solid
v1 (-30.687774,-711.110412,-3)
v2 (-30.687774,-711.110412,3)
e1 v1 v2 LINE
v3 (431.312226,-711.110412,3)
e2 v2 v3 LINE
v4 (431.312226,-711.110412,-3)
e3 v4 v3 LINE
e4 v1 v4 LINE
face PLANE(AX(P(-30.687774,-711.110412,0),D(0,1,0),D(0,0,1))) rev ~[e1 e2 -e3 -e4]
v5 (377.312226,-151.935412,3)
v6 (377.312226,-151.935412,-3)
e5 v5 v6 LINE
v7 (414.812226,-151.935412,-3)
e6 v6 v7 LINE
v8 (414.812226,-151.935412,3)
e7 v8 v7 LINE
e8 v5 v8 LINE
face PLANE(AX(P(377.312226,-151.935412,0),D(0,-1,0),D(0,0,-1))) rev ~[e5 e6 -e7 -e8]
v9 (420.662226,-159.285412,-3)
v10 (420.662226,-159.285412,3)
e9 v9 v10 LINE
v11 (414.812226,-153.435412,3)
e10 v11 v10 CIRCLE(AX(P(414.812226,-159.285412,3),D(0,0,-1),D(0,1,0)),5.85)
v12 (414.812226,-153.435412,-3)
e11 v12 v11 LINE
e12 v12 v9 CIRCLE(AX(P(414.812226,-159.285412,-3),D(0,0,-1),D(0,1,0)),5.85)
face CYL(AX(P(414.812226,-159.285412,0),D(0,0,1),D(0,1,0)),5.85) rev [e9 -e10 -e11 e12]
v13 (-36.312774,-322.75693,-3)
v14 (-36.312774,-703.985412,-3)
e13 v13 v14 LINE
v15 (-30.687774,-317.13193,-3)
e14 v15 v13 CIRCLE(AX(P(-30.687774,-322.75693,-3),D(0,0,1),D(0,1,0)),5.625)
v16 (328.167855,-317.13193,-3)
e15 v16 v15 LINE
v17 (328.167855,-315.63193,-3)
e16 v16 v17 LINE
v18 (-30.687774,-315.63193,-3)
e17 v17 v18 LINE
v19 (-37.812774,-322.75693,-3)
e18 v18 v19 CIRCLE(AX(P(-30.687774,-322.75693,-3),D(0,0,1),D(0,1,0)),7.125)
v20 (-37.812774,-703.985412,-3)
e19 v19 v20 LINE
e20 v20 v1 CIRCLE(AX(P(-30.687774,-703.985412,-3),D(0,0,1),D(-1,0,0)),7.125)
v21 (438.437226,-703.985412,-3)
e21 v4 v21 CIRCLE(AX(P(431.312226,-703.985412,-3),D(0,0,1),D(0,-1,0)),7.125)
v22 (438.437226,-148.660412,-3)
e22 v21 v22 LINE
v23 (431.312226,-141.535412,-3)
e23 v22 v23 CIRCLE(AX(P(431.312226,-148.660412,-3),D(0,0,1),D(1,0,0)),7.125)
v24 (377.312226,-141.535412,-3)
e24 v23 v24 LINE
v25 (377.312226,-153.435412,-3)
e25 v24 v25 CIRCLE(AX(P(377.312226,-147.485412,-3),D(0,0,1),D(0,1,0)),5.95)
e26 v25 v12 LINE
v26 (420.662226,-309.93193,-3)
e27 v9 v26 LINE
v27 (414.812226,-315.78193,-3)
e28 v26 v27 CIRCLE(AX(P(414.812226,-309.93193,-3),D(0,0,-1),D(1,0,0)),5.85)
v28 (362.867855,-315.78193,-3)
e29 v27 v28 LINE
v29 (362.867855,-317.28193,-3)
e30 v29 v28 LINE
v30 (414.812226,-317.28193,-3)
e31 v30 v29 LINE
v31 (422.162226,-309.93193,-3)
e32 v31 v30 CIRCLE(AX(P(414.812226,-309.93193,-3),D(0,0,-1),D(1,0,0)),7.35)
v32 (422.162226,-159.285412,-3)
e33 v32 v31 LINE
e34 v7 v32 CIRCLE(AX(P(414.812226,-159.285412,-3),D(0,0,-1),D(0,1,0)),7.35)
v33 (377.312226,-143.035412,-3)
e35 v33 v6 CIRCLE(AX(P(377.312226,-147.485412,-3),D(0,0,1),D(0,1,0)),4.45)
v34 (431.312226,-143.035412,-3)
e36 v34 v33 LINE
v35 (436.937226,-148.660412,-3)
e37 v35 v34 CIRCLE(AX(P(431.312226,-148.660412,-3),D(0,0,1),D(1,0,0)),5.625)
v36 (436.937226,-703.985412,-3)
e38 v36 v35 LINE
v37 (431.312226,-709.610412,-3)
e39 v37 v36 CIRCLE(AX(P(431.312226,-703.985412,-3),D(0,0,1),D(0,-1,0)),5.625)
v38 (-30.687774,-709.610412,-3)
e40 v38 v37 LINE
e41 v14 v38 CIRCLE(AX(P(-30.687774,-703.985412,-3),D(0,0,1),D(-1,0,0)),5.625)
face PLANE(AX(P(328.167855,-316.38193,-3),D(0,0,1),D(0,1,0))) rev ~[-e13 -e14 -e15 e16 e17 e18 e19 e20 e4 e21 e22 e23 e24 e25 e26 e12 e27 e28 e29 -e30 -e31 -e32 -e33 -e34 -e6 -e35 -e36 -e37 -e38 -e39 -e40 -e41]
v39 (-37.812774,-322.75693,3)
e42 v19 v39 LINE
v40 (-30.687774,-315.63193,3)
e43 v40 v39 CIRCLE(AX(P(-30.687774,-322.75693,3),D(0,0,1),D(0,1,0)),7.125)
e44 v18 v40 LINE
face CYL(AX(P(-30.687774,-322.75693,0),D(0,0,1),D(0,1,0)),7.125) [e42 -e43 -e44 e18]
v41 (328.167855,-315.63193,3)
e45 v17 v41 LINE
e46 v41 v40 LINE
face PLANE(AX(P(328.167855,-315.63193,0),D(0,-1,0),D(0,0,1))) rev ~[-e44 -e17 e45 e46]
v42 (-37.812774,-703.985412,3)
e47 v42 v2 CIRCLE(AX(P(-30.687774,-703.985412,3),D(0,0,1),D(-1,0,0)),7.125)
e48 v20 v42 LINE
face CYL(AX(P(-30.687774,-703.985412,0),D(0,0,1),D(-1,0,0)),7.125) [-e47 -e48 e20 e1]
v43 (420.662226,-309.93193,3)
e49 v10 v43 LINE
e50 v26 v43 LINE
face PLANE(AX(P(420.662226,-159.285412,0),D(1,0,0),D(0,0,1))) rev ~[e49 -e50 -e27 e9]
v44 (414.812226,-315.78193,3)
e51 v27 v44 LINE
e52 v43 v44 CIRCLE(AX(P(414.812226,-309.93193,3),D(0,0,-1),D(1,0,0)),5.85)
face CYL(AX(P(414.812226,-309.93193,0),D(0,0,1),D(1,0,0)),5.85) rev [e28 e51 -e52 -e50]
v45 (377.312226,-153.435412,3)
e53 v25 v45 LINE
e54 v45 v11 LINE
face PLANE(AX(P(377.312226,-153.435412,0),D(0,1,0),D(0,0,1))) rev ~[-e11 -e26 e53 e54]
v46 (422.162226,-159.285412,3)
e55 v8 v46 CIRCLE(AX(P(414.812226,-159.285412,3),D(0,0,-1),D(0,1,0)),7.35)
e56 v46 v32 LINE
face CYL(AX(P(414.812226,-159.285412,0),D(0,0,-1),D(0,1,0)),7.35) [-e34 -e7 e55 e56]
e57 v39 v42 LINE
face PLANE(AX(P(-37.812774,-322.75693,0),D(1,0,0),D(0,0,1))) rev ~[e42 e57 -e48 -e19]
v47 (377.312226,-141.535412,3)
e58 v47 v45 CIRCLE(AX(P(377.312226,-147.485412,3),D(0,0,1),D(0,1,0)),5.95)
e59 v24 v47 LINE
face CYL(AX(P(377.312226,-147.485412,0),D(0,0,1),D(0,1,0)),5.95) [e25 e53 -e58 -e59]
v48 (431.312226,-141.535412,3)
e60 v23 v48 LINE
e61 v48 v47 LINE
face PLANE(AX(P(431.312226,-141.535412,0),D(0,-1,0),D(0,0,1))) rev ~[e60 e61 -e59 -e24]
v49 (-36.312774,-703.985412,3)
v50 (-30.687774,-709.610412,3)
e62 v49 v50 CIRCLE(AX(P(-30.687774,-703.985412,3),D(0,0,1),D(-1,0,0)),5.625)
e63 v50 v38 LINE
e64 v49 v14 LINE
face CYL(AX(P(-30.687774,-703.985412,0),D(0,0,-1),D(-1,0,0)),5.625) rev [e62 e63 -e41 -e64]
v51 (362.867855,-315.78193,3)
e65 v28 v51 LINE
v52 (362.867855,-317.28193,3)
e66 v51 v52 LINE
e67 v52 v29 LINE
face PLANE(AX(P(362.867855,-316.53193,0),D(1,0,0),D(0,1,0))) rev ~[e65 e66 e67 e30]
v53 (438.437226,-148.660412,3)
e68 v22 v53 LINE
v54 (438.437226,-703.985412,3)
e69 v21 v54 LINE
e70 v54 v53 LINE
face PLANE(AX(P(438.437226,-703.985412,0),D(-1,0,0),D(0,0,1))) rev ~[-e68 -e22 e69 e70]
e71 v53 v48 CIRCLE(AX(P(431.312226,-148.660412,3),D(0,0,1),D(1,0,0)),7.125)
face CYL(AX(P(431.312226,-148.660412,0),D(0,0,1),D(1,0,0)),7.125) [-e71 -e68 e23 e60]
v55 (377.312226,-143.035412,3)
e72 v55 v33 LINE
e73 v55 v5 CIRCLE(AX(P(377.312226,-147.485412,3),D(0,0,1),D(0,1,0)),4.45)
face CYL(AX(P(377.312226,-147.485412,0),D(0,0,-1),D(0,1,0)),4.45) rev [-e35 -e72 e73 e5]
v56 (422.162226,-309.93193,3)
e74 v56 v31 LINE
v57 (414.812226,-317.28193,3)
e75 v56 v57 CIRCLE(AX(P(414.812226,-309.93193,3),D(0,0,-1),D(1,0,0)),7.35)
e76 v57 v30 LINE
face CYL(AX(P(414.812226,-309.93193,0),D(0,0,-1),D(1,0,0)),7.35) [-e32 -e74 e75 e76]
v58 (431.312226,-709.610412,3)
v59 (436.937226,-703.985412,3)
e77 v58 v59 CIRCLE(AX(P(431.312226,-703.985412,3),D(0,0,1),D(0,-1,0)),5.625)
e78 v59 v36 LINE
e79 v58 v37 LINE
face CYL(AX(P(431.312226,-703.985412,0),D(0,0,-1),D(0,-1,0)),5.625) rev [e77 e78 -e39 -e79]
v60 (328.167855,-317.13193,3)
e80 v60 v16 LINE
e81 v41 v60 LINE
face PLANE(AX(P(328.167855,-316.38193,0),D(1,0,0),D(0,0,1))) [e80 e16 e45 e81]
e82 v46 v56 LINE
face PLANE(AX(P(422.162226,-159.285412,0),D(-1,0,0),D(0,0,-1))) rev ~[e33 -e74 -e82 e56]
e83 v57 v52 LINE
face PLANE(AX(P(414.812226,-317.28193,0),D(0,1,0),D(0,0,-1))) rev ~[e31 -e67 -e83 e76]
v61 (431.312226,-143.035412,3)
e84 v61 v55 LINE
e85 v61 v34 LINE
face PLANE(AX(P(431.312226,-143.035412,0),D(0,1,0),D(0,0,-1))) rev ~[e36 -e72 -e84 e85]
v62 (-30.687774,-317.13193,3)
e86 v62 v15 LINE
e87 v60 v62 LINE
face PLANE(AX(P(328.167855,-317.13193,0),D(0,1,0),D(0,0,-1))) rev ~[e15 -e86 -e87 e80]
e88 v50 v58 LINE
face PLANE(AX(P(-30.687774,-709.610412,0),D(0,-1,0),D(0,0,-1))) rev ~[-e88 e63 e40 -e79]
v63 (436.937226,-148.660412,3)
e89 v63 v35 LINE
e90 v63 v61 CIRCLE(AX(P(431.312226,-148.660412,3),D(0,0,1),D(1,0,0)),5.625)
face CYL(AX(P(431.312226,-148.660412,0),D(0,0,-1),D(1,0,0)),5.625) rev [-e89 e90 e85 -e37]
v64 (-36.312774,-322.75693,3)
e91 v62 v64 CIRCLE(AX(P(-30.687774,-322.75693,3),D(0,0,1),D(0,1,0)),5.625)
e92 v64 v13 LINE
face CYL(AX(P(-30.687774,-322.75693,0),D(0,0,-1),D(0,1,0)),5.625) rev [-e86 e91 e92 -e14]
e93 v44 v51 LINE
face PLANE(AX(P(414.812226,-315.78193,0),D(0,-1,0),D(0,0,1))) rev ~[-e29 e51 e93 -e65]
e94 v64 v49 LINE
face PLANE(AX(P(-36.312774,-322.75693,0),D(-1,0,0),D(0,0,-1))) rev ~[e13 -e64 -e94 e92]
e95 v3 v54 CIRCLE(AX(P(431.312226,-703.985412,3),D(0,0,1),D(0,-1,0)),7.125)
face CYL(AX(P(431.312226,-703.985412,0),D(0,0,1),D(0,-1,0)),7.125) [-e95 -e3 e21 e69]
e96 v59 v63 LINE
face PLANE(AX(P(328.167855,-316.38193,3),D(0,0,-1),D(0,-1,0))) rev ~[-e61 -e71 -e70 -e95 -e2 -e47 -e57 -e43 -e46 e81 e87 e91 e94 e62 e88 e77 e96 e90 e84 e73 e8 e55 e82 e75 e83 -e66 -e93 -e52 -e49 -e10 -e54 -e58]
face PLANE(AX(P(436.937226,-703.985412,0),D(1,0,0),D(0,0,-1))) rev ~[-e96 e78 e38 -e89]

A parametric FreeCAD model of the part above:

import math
import FreeCAD as App
import Part
import Sketcher

V = App.Vector

doc = App.newDocument("Part")
body = doc.addObject("PartDesign::Body", "Body")

sketch1 = body.newObject("Sketcher::SketchObject", "Sketch")
sketch1.AttachmentSupport = (doc.getObject("YZ_Plane"), [""])
sketch1.MapMode = "FlatFace"
sketch1.AttachmentOffset = App.Placement(V(0, 0, 328.167855), App.Rotation())
sketch1.addGeometry([
    Part.LineSegment(V(-315.6, 3, 0), V(-317.1, 3, 0)),
    Part.LineSegment(V(-317.1, 3, 0), V(-317.1, -3, 0)),
    Part.LineSegment(V(-317.1, -3, 0), V(-315.6, -3, 0)),
    Part.LineSegment(V(-315.6, -3, 0), V(-315.6, 3, 0)),
], False)
sketch1.addConstraint([
    Sketcher.Constraint("Coincident", 0, 2, 1, 1),
    Sketcher.Constraint("Coincident", 1, 2, 2, 1),
    Sketcher.Constraint("Coincident", 2, 2, 3, 1),
    Sketcher.Constraint("Coincident", 3, 2, 0, 1),
    Sketcher.Constraint("Horizontal", 0),
    Sketcher.Constraint("Vertical", 1),
    Sketcher.Constraint("Horizontal", 2),
    Sketcher.Constraint("Vertical", 3),
    Sketcher.Constraint("DistanceY", 1, 2, 1, 1, 6.0),
    Sketcher.Constraint("DistanceX", 0, 2, 0, 1, 1.5),
    Sketcher.Constraint("DistanceY", -1, 1, 0, 2, 3.0),
    Sketcher.Constraint("DistanceX", 0, 2, -1, 1, 317.13193),
])

sketch2 = body.newObject("Sketcher::SketchObject", "Sketch001")
sketch2.AttachmentSupport = (doc.getObject("XY_Plane"), [""])
sketch2.MapMode = "FlatFace"
sketch2.addGeometry([
    Part.LineSegment(V(328, -316, 0), V(-31, -316, 0)),
    Part.ArcOfCircle(Part.Circle(V(-31, -323, 0), V(0, 0, 1), 6), math.radians(90), math.radians(180)),
    Part.LineSegment(V(-37, -323, 0), V(-37, -704, 0)),
    Part.ArcOfCircle(Part.Circle(V(-31, -704, 0), V(0, 0, 1), 6), math.radians(180), math.radians(270)),
    Part.LineSegment(V(-31, -710, 0), V(431, -710, 0)),
    Part.ArcOfCircle(Part.Circle(V(431, -704, 0), V(0, 0, 1), 6), math.radians(-90), math.radians(0)),
    Part.LineSegment(V(438, -704, 0), V(438, -149, 0)),
    Part.ArcOfCircle(Part.Circle(V(431, -149, 0), V(0, 0, 1), 6), math.radians(0), math.radians(90)),
    Part.LineSegment(V(431, -142, 0), V(377, -142, 0)),
    Part.ArcOfCircle(Part.Circle(V(377, -147, 0), V(0, 0, 1), 5), math.radians(90), math.radians(270)),
    Part.LineSegment(V(377, -153, 0), V(415, -153, 0)),
    Part.ArcOfCircle(Part.Circle(V(415, -159, 0), V(0, 0, 1), 7), math.radians(0), math.radians(90)),
    Part.LineSegment(V(421, -159, 0), V(421, -310, 0)),
    Part.ArcOfCircle(Part.Circle(V(415, -310, 0), V(0, 0, 1), 7), math.radians(-90), math.radians(0)),
    Part.LineSegment(V(415, -317, 0), V(363, -317, 0)),
], False)
sketch2.addConstraint([
    Sketcher.Constraint("Tangent", 0, 2, 1, 1),
    Sketcher.Constraint("Tangent", 1, 2, 2, 1),
    Sketcher.Constraint("Tangent", 2, 2, 3, 1),
    Sketcher.Constraint("Tangent", 3, 2, 4, 1),
    Sketcher.Constraint("Tangent", 4, 2, 5, 1),
    Sketcher.Constraint("Tangent", 5, 2, 6, 1),
    Sketcher.Constraint("Tangent", 6, 2, 7, 1),
    Sketcher.Constraint("Tangent", 7, 2, 8, 1),
    Sketcher.Constraint("Tangent", 8, 2, 9, 1),
    Sketcher.Constraint("Tangent", 9, 2, 10, 1),
    Sketcher.Constraint("Tangent", 10, 2, 11, 2),
    Sketcher.Constraint("Tangent", 11, 1, 12, 1),
    Sketcher.Constraint("Tangent", 12, 2, 13, 2),
    Sketcher.Constraint("Tangent", 13, 1, 14, 1),
    Sketcher.Constraint("Horizontal", 0),
    Sketcher.Constraint("Vertical", 2),
    Sketcher.Constraint("Horizontal", 4),
    Sketcher.Constraint("Vertical", 6),
    Sketcher.Constraint("Horizontal", 8),
    Sketcher.Constraint("Horizontal", 10),
    Sketcher.Constraint("Vertical", 12),
    Sketcher.Constraint("Horizontal", 14),
    Sketcher.Constraint("Equal", 1, 3),
    Sketcher.Constraint("Equal", 3, 5),
    Sketcher.Constraint("Equal", 5, 7),
    Sketcher.Constraint("Equal", 11, 13),
    Sketcher.Constraint("Radius", 9, 5.2),
    Sketcher.Constraint("Radius", 11, 6.6),
    Sketcher.Constraint("DistanceX", 4, 1, 4, 2, 462.0),
    Sketcher.Constraint("DistanceX", 8, 2, 8, 1, 54.0),
    Sketcher.Constraint("DistanceX", 10, 1, 10, 2, 37.5),
    Sketcher.Constraint("Radius", 1, 6.375),
    Sketcher.Constraint("DistanceY", 5, 3, 9, 3, 556.5),
    Sketcher.Constraint("DistanceX", 0, 1, 14, 2, 34.7),
    Sketcher.Constraint("DistanceY", 0, 1, 13, 3, 6.45),
    Sketcher.Constraint("DistanceX", 0, 2, 0, 1, 358.855629),
    Sketcher.Constraint("DistanceY", 2, 2, 2, 1, 381.228482),
    Sketcher.Constraint("DistanceY", 1, 3, -1, 1, 322.75693),
    Sketcher.Constraint("DistanceX", 1, 3, -1, 1, 30.687774),
])
doc.recompute()

additivepipe = body.newObject("PartDesign::AdditivePipe", "AdditivePipe")
additivepipe.Profile = sketch1
additivepipe.Spine = (sketch2, ["Edge1", "Edge2", "Edge3", "Edge4", "Edge5", "Edge6", "Edge7", "Edge8", "Edge9", "Edge10", "Edge11", "Edge12", "Edge13", "Edge14", "Edge15"])

doc.recompute()
